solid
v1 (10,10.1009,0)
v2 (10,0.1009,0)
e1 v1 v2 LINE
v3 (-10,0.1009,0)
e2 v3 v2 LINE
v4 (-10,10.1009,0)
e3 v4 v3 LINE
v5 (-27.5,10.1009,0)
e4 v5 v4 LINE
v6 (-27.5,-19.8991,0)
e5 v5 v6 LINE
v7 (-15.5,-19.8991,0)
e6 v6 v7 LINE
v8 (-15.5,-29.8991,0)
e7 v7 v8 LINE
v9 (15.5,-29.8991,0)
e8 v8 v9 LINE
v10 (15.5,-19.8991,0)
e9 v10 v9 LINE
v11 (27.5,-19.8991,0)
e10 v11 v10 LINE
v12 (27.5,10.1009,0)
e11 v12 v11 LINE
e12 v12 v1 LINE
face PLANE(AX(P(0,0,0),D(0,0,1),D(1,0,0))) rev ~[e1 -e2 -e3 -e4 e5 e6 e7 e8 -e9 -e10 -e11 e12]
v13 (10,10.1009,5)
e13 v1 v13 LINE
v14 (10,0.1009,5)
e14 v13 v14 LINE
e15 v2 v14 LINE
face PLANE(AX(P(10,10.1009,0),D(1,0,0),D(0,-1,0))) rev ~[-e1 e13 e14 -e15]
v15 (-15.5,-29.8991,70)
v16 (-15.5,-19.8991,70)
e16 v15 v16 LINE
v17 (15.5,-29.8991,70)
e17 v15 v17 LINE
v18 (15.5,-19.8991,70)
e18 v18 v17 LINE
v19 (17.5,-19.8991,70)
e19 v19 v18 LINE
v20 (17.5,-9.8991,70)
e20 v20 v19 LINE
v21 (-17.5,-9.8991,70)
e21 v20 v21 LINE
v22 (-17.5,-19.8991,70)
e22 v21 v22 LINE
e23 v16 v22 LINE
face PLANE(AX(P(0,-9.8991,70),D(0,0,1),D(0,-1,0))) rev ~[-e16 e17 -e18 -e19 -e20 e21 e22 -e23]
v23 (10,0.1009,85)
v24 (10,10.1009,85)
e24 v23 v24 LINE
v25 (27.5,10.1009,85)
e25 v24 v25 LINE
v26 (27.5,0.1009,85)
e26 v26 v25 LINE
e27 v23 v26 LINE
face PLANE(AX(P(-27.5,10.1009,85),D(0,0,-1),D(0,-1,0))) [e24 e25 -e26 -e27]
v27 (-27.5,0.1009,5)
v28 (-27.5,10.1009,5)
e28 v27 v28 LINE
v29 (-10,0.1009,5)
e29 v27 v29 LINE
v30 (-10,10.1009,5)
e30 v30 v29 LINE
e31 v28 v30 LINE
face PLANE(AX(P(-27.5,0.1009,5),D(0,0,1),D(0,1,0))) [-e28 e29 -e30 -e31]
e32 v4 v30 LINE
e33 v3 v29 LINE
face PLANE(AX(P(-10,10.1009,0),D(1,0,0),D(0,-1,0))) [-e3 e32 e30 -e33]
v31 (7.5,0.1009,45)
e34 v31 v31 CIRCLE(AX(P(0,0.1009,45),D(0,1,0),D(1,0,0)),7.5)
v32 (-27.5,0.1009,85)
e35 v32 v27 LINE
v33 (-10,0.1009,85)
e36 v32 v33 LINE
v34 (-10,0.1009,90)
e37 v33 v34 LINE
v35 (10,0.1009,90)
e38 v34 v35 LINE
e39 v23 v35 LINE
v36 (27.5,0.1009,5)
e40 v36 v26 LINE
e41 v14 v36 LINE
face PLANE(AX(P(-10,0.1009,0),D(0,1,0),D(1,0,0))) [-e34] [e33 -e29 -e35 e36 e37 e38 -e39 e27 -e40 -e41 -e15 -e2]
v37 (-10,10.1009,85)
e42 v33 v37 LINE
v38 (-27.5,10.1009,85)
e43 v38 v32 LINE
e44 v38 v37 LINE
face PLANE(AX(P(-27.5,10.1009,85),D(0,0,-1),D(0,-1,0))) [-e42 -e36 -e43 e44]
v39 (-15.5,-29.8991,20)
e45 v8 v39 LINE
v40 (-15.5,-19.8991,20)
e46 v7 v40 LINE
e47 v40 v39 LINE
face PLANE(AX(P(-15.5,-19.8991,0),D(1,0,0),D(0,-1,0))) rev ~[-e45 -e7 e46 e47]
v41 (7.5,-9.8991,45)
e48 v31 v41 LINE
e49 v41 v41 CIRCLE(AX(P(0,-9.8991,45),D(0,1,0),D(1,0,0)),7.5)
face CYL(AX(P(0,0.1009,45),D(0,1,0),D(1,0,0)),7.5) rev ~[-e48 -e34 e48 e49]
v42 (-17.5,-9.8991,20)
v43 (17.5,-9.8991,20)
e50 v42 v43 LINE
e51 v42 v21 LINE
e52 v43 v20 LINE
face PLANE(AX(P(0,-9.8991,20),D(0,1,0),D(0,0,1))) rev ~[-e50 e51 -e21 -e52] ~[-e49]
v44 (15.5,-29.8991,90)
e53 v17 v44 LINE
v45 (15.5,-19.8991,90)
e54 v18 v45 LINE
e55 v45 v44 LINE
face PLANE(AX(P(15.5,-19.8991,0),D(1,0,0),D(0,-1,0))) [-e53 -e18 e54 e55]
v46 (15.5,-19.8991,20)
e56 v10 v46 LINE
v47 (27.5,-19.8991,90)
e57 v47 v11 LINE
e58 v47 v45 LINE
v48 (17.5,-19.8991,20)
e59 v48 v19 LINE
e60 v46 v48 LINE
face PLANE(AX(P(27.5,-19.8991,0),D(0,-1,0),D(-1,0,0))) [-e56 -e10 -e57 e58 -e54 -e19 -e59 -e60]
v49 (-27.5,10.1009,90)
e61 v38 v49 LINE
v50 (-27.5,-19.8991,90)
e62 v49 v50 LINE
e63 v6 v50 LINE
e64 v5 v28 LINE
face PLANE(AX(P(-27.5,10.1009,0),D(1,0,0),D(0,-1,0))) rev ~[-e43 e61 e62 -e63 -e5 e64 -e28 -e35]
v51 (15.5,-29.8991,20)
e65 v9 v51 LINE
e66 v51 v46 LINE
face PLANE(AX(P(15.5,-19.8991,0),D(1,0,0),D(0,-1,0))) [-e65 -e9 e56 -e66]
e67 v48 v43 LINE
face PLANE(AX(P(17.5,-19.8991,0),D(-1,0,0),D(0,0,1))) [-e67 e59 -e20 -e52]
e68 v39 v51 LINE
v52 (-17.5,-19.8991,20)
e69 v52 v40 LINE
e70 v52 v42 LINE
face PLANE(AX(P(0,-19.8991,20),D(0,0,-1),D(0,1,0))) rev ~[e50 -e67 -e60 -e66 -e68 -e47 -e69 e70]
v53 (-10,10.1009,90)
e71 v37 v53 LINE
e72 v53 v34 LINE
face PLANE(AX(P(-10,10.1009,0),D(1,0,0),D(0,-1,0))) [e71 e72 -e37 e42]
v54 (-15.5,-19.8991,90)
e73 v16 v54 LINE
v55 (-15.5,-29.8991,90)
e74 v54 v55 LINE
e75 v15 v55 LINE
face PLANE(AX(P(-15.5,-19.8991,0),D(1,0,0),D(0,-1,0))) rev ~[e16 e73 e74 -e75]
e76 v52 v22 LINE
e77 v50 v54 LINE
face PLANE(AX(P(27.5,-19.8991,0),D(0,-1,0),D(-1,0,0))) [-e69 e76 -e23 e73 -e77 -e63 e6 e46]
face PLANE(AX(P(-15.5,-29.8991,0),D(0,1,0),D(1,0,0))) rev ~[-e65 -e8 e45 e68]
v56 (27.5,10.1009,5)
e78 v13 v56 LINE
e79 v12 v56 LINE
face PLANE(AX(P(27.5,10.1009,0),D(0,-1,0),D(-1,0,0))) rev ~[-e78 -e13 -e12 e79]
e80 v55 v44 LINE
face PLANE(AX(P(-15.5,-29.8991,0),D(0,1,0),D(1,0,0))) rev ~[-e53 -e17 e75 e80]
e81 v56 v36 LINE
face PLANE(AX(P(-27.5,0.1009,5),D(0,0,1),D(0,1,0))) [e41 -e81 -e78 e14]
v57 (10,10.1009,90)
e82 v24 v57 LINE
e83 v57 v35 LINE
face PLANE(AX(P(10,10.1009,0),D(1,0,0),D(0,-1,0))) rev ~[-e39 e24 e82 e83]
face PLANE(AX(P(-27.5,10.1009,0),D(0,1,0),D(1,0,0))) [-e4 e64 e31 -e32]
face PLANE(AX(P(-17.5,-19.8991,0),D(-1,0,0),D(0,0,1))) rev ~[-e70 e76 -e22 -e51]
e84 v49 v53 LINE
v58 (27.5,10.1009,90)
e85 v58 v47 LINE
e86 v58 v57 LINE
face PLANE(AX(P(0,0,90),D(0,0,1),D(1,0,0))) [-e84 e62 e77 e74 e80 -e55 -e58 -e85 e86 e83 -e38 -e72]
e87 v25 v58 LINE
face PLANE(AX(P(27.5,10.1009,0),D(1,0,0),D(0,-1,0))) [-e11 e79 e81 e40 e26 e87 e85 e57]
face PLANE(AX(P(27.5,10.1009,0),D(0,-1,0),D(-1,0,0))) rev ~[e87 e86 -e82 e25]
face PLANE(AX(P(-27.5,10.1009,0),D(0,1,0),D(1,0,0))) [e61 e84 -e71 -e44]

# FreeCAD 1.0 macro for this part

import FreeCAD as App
import Part
import Sketcher

V = App.Vector
Q = App.Units.Quantity

doc = App.newDocument("Part")
params = doc.addObject("Spreadsheet::Sheet", "Params")
for row, (alias, value) in enumerate([
    ("sketch1_width", "12 mm"),
    ("sketch1_width2", "20 mm"),
    ("sketch1_height", "10 mm"),
    ("sketch1_width3", "17.5 mm"),
    ("pad1_length", "90 mm"),
    ("sketch2_width", "10 mm"),
    ("sketch2_height", "80 mm"),
    ("sketch3_height", "50 mm"),
    ("sketch3_width", "10 mm"),
    ("sketch4_diameter", "15 mm"),
    ("sketch5_width", "10 mm"),
    ("sketch5_height", "50 mm"),
    ("pocket4_length", "35 mm"),
], start=1):
    params.set(f"A{row}", alias)
    params.set(f"B{row}", "=" + value)
    params.setAlias(f"B{row}", alias)

body = doc.addObject("PartDesign::Body", "Body")

# Sketch on XY plane
sketch1 = doc.addObject("Sketcher::SketchObject", "Sketch")
body.addObject(sketch1)
sketch1.AttachmentSupport = (doc.XY_Plane, [""])
sketch1.MapMode = "FlatFace"
sketch1.addGeometry([
    Part.LineSegment(V(-10, 10.1009, 0), V(-27.5, 10.1009, 0)),  # 0
    Part.LineSegment(V(-27.5, 10.1009, 0), V(-27.5, -19.8991, 0)),  # 1
    Part.LineSegment(V(-27.5, -19.8991, 0), V(-15.5, -19.8991, 0)),  # 2
    Part.LineSegment(V(-15.5, -19.8991, 0), V(-15.5, -29.8991, 0)),  # 3
    Part.LineSegment(V(-15.5, -29.8991, 0), V(15.5, -29.8991, 0)),  # 4
    Part.LineSegment(V(15.5, -29.8991, 0), V(15.5, -19.8991, 0)),  # 5
    Part.LineSegment(V(15.5, -19.8991, 0), V(27.5, -19.8991, 0)),  # 6
    Part.LineSegment(V(27.5, -19.8991, 0), V(27.5, 10.1009, 0)),  # 7
    Part.LineSegment(V(27.5, 10.1009, 0), V(10, 10.1009, 0)),  # 8
    Part.LineSegment(V(10, 10.1009, 0), V(10, 0.1009, 0)),  # 9
    Part.LineSegment(V(10, 0.1009, 0), V(-10, 0.1009, 0)),  # 10
    Part.LineSegment(V(-10, 0.1009, 0), V(-10, 10.1009, 0)),  # 11
], False)
sketch1.addConstraint([
    Sketcher.Constraint("Coincident", 0, 2, 1, 1),
    Sketcher.Constraint("Coincident", 1, 2, 2, 1),
    Sketcher.Constraint("Coincident", 2, 2, 3, 1),
    Sketcher.Constraint("Coincident", 3, 2, 4, 1),
    Sketcher.Constraint("Coincident", 4, 2, 5, 1),
    Sketcher.Constraint("Coincident", 5, 2, 6, 1),
    Sketcher.Constraint("Coincident", 6, 2, 7, 1),
    Sketcher.Constraint("Coincident", 7, 2, 8, 1),
    Sketcher.Constraint("Coincident", 8, 2, 9, 1),
    Sketcher.Constraint("Coincident", 9, 2, 10, 1),
    Sketcher.Constraint("Coincident", 10, 2, 11, 1),
    Sketcher.Constraint("Coincident", 11, 2, 0, 1),
    Sketcher.Constraint("Horizontal", 0),
    Sketcher.Constraint("Vertical", 1),
    Sketcher.Constraint("Horizontal", 2),
    Sketcher.Constraint("Vertical", 3),
    Sketcher.Constraint("Horizontal", 4),
    Sketcher.Constraint("Vertical", 5),
    Sketcher.Constraint("Horizontal", 6),
    Sketcher.Constraint("Vertical", 7),
    Sketcher.Constraint("Horizontal", 8),
    Sketcher.Constraint("Vertical", 9),
    Sketcher.Constraint("Horizontal", 10),
    Sketcher.Constraint("Vertical", 11),
    Sketcher.Constraint("Symmetric", 2, 2, 5, 2, -2),
    Sketcher.Constraint("Symmetric", 0, 2, 7, 2, -2),
    Sketcher.Constraint("Equal", 0, 8),
    Sketcher.Constraint("Equal", 5, 9),
    Sketcher.Constraint("DistanceX", 2, 1, 2, 2, Q("12 mm")),
    Sketcher.Constraint("DistanceX", 10, 2, 10, 1, Q("20 mm")),
    Sketcher.Constraint("DistanceY", 3, 2, 3, 1, Q("10 mm")),
    Sketcher.Constraint("DistanceX", 0, 2, 0, 1, Q("17.5 mm")),
    Sketcher.Constraint("DistanceY", 3, 2, 0, 2, Q("40 mm")),
    Sketcher.Constraint("DistanceY", -1, 1, 0, 2, Q("10.101 mm")),
])
sketch1.setExpression("Constraints[28]", "Params.sketch1_width")
sketch1.setExpression("Constraints[29]", "Params.sketch1_width2")
sketch1.setExpression("Constraints[30]", "Params.sketch1_height")
sketch1.setExpression("Constraints[31]", "Params.sketch1_width3")
pad1 = doc.addObject("PartDesign::Pad", "Pad")
body.addObject(pad1)
pad1.Profile = sketch1
pad1.setExpression("Length", "Params.pad1_length")

# Sketch on YZ plane
sketch2 = doc.addObject("Sketcher::SketchObject", "Sketch001")
body.addObject(sketch2)
sketch2.AttachmentSupport = (doc.YZ_Plane, [""])
sketch2.MapMode = "FlatFace"
sketch2.AttachmentOffset = App.Placement(V(0, 0, -27.5), App.Rotation())
sketch2.addGeometry([
    Part.LineSegment(V(10.1009, 85, 0), V(10.1009, 5, 0)),
    Part.LineSegment(V(10.1009, 5, 0), V(0.1009, 5, 0)),
    Part.LineSegment(V(0.1009, 5, 0), V(0.1009, 85, 0)),
    Part.LineSegment(V(0.1009, 85, 0), V(10.1009, 85, 0)),
], False)
sketch2.addConstraint([
    Sketcher.Constraint("Coincident", 0, 2, 1, 1),
    Sketcher.Constraint("Coincident", 1, 2, 2, 1),
    Sketcher.Constraint("Coincident", 2, 2, 3, 1),
    Sketcher.Constraint("Coincident", 3, 2, 0, 1),
    Sketcher.Constraint("Vertical", 0),
    Sketcher.Constraint("Horizontal", 1),
    Sketcher.Constraint("Vertical", 2),
    Sketcher.Constraint("Horizontal", 3),
    Sketcher.Constraint("DistanceX", 1, 2, 1, 1, Q("10 mm")),
    Sketcher.Constraint("DistanceY", -1, 1, 0, 2, Q("5 mm")),
    Sketcher.Constraint("DistanceY", 0, 2, 0, 1, Q("80 mm")),
    Sketcher.Constraint("DistanceX", -1, 1, 0, 2, Q("10.101 mm")),
])
sketch2.setExpression("Constraints[8]", "Params.sketch2_width")
sketch2.setExpression("Constraints[10]", "Params.sketch2_height")
pocket1 = doc.addObject("PartDesign::Pocket", "Pocket")
body.addObject(pocket1)
pocket1.Profile = sketch2
pocket1.Type = "ThroughAll"
pocket1.Reversed = True

# Sketch on YZ plane
sketch3 = doc.addObject("Sketcher::SketchObject", "Sketch002")
body.addObject(sketch3)
sketch3.AttachmentSupport = (doc.YZ_Plane, [""])
sketch3.MapMode = "FlatFace"
sketch3.AttachmentOffset = App.Placement(V(0, 0, -15.5), App.Rotation())
sketch3.addGeometry([
    Part.LineSegment(V(-19.8991, 20, 0), V(-29.8991, 20, 0)),
    Part.LineSegment(V(-29.8991, 20, 0), V(-29.8991, 70, 0)),
    Part.LineSegment(V(-29.8991, 70, 0), V(-19.8991, 70, 0)),
    Part.LineSegment(V(-19.8991, 70, 0), V(-19.8991, 20, 0)),
], False)
sketch3.addConstraint([
    Sketcher.Constraint("Coincident", 0, 2, 1, 1),
    Sketcher.Constraint("Coincident", 1, 2, 2, 1),
    Sketcher.Constraint("Coincident", 2, 2, 3, 1),
    Sketcher.Constraint("Coincident", 3, 2, 0, 1),
    Sketcher.Constraint("Horizontal", 0),
    Sketcher.Constraint("Vertical", 1),
    Sketcher.Constraint("Horizontal", 2),
    Sketcher.Constraint("Vertical", 3),
    Sketcher.Constraint("DistanceY", 1, 1, 1, 2, Q("50 mm")),
    Sketcher.Constraint("DistanceY", -1, 1, 0, 2, Q("20 mm")),
    Sketcher.Constraint("DistanceX", 0, 2, 0, 1, Q("10 mm")),
    Sketcher.Constraint("DistanceX", 0, 2, -1, 1, Q("29.899 mm")),
])
sketch3.setExpression("Constraints[8]", "Params.sketch3_height")
sketch3.setExpression("Constraints[10]", "Params.sketch3_width")
pocket2 = doc.addObject("PartDesign::Pocket", "Pocket001")
body.addObject(pocket2)
pocket2.Profile = sketch3
pocket2.Type = "ThroughAll"
pocket2.Reversed = True

# Sketch on XZ plane
sketch4 = doc.addObject("Sketcher::SketchObject", "Sketch003")
body.addObject(sketch4)
sketch4.AttachmentSupport = (doc.XZ_Plane, [""])
sketch4.MapMode = "FlatFace"
sketch4.AttachmentOffset = App.Placement(V(0, 0, -0.1009), App.Rotation())
sketch4.addGeometry(Part.Circle(V(0, 45, 0), V(0, 0, 1), 7.5), False)
sketch4.addConstraint([
    Sketcher.Constraint("PointOnObject", 0, 3, -2),
    Sketcher.Constraint("Diameter", 0, Q("15 mm")),
    Sketcher.Constraint("DistanceY", -1, 1, 0, 3, Q("45 mm")),
])
sketch4.setExpression("Constraints[1]", "Params.sketch4_diameter")
pocket3 = doc.addObject("PartDesign::Pocket", "Pocket002")
body.addObject(pocket3)
pocket3.Profile = sketch4
pocket3.Type = "ThroughAll"
pocket3.Reversed = True

# Sketch on YZ plane
sketch5 = doc.addObject("Sketcher::SketchObject", "Sketch004")
body.addObject(sketch5)
sketch5.AttachmentSupport = (doc.YZ_Plane, [""])
sketch5.MapMode = "FlatFace"
sketch5.addGeometry([
    Part.LineSegment(V(-19.8991, 20, 0), V(-19.8991, 70, 0)),
    Part.LineSegment(V(-19.8991, 70, 0), V(-9.8991, 70, 0)),
    Part.LineSegment(V(-9.8991, 70, 0), V(-9.8991, 20, 0)),
    Part.LineSegment(V(-9.8991, 20, 0), V(-19.8991, 20, 0)),
], False)
sketch5.addConstraint([
    Sketcher.Constraint("Coincident", 0, 2, 1, 1),
    Sketcher.Constraint("Coincident", 1, 2, 2, 1),
    Sketcher.Constraint("Coincident", 2, 2, 3, 1),
    Sketcher.Constraint("Coincident", 3, 2, 0, 1),
    Sketcher.Constraint("Vertical", 0),
    Sketcher.Constraint("Horizontal", 1),
    Sketcher.Constraint("Vertical", 2),
    Sketcher.Constraint("Horizontal", 3),
    Sketcher.Constraint("DistanceX", 1, 1, 1, 2, Q("10 mm")),
    Sketcher.Constraint("DistanceY", 0, 1, 0, 2, Q("50 mm")),
    Sketcher.Constraint("DistanceY", -1, 1, 0, 2, Q("70 mm")),
    Sketcher.Constraint("DistanceX", 0, 2, -1, 1, Q("19.899 mm")),
])
sketch5.setExpression("Constraints[8]", "Params.sketch5_width")
sketch5.setExpression("Constraints[9]", "Params.sketch5_height")
pocket4 = doc.addObject("PartDesign::Pocket", "Pocket003")
body.addObject(pocket4)
pocket4.Profile = sketch5
pocket4.setExpression("Length", "Params.pocket4_length")
pocket4.Midplane = True

doc.recompute()
